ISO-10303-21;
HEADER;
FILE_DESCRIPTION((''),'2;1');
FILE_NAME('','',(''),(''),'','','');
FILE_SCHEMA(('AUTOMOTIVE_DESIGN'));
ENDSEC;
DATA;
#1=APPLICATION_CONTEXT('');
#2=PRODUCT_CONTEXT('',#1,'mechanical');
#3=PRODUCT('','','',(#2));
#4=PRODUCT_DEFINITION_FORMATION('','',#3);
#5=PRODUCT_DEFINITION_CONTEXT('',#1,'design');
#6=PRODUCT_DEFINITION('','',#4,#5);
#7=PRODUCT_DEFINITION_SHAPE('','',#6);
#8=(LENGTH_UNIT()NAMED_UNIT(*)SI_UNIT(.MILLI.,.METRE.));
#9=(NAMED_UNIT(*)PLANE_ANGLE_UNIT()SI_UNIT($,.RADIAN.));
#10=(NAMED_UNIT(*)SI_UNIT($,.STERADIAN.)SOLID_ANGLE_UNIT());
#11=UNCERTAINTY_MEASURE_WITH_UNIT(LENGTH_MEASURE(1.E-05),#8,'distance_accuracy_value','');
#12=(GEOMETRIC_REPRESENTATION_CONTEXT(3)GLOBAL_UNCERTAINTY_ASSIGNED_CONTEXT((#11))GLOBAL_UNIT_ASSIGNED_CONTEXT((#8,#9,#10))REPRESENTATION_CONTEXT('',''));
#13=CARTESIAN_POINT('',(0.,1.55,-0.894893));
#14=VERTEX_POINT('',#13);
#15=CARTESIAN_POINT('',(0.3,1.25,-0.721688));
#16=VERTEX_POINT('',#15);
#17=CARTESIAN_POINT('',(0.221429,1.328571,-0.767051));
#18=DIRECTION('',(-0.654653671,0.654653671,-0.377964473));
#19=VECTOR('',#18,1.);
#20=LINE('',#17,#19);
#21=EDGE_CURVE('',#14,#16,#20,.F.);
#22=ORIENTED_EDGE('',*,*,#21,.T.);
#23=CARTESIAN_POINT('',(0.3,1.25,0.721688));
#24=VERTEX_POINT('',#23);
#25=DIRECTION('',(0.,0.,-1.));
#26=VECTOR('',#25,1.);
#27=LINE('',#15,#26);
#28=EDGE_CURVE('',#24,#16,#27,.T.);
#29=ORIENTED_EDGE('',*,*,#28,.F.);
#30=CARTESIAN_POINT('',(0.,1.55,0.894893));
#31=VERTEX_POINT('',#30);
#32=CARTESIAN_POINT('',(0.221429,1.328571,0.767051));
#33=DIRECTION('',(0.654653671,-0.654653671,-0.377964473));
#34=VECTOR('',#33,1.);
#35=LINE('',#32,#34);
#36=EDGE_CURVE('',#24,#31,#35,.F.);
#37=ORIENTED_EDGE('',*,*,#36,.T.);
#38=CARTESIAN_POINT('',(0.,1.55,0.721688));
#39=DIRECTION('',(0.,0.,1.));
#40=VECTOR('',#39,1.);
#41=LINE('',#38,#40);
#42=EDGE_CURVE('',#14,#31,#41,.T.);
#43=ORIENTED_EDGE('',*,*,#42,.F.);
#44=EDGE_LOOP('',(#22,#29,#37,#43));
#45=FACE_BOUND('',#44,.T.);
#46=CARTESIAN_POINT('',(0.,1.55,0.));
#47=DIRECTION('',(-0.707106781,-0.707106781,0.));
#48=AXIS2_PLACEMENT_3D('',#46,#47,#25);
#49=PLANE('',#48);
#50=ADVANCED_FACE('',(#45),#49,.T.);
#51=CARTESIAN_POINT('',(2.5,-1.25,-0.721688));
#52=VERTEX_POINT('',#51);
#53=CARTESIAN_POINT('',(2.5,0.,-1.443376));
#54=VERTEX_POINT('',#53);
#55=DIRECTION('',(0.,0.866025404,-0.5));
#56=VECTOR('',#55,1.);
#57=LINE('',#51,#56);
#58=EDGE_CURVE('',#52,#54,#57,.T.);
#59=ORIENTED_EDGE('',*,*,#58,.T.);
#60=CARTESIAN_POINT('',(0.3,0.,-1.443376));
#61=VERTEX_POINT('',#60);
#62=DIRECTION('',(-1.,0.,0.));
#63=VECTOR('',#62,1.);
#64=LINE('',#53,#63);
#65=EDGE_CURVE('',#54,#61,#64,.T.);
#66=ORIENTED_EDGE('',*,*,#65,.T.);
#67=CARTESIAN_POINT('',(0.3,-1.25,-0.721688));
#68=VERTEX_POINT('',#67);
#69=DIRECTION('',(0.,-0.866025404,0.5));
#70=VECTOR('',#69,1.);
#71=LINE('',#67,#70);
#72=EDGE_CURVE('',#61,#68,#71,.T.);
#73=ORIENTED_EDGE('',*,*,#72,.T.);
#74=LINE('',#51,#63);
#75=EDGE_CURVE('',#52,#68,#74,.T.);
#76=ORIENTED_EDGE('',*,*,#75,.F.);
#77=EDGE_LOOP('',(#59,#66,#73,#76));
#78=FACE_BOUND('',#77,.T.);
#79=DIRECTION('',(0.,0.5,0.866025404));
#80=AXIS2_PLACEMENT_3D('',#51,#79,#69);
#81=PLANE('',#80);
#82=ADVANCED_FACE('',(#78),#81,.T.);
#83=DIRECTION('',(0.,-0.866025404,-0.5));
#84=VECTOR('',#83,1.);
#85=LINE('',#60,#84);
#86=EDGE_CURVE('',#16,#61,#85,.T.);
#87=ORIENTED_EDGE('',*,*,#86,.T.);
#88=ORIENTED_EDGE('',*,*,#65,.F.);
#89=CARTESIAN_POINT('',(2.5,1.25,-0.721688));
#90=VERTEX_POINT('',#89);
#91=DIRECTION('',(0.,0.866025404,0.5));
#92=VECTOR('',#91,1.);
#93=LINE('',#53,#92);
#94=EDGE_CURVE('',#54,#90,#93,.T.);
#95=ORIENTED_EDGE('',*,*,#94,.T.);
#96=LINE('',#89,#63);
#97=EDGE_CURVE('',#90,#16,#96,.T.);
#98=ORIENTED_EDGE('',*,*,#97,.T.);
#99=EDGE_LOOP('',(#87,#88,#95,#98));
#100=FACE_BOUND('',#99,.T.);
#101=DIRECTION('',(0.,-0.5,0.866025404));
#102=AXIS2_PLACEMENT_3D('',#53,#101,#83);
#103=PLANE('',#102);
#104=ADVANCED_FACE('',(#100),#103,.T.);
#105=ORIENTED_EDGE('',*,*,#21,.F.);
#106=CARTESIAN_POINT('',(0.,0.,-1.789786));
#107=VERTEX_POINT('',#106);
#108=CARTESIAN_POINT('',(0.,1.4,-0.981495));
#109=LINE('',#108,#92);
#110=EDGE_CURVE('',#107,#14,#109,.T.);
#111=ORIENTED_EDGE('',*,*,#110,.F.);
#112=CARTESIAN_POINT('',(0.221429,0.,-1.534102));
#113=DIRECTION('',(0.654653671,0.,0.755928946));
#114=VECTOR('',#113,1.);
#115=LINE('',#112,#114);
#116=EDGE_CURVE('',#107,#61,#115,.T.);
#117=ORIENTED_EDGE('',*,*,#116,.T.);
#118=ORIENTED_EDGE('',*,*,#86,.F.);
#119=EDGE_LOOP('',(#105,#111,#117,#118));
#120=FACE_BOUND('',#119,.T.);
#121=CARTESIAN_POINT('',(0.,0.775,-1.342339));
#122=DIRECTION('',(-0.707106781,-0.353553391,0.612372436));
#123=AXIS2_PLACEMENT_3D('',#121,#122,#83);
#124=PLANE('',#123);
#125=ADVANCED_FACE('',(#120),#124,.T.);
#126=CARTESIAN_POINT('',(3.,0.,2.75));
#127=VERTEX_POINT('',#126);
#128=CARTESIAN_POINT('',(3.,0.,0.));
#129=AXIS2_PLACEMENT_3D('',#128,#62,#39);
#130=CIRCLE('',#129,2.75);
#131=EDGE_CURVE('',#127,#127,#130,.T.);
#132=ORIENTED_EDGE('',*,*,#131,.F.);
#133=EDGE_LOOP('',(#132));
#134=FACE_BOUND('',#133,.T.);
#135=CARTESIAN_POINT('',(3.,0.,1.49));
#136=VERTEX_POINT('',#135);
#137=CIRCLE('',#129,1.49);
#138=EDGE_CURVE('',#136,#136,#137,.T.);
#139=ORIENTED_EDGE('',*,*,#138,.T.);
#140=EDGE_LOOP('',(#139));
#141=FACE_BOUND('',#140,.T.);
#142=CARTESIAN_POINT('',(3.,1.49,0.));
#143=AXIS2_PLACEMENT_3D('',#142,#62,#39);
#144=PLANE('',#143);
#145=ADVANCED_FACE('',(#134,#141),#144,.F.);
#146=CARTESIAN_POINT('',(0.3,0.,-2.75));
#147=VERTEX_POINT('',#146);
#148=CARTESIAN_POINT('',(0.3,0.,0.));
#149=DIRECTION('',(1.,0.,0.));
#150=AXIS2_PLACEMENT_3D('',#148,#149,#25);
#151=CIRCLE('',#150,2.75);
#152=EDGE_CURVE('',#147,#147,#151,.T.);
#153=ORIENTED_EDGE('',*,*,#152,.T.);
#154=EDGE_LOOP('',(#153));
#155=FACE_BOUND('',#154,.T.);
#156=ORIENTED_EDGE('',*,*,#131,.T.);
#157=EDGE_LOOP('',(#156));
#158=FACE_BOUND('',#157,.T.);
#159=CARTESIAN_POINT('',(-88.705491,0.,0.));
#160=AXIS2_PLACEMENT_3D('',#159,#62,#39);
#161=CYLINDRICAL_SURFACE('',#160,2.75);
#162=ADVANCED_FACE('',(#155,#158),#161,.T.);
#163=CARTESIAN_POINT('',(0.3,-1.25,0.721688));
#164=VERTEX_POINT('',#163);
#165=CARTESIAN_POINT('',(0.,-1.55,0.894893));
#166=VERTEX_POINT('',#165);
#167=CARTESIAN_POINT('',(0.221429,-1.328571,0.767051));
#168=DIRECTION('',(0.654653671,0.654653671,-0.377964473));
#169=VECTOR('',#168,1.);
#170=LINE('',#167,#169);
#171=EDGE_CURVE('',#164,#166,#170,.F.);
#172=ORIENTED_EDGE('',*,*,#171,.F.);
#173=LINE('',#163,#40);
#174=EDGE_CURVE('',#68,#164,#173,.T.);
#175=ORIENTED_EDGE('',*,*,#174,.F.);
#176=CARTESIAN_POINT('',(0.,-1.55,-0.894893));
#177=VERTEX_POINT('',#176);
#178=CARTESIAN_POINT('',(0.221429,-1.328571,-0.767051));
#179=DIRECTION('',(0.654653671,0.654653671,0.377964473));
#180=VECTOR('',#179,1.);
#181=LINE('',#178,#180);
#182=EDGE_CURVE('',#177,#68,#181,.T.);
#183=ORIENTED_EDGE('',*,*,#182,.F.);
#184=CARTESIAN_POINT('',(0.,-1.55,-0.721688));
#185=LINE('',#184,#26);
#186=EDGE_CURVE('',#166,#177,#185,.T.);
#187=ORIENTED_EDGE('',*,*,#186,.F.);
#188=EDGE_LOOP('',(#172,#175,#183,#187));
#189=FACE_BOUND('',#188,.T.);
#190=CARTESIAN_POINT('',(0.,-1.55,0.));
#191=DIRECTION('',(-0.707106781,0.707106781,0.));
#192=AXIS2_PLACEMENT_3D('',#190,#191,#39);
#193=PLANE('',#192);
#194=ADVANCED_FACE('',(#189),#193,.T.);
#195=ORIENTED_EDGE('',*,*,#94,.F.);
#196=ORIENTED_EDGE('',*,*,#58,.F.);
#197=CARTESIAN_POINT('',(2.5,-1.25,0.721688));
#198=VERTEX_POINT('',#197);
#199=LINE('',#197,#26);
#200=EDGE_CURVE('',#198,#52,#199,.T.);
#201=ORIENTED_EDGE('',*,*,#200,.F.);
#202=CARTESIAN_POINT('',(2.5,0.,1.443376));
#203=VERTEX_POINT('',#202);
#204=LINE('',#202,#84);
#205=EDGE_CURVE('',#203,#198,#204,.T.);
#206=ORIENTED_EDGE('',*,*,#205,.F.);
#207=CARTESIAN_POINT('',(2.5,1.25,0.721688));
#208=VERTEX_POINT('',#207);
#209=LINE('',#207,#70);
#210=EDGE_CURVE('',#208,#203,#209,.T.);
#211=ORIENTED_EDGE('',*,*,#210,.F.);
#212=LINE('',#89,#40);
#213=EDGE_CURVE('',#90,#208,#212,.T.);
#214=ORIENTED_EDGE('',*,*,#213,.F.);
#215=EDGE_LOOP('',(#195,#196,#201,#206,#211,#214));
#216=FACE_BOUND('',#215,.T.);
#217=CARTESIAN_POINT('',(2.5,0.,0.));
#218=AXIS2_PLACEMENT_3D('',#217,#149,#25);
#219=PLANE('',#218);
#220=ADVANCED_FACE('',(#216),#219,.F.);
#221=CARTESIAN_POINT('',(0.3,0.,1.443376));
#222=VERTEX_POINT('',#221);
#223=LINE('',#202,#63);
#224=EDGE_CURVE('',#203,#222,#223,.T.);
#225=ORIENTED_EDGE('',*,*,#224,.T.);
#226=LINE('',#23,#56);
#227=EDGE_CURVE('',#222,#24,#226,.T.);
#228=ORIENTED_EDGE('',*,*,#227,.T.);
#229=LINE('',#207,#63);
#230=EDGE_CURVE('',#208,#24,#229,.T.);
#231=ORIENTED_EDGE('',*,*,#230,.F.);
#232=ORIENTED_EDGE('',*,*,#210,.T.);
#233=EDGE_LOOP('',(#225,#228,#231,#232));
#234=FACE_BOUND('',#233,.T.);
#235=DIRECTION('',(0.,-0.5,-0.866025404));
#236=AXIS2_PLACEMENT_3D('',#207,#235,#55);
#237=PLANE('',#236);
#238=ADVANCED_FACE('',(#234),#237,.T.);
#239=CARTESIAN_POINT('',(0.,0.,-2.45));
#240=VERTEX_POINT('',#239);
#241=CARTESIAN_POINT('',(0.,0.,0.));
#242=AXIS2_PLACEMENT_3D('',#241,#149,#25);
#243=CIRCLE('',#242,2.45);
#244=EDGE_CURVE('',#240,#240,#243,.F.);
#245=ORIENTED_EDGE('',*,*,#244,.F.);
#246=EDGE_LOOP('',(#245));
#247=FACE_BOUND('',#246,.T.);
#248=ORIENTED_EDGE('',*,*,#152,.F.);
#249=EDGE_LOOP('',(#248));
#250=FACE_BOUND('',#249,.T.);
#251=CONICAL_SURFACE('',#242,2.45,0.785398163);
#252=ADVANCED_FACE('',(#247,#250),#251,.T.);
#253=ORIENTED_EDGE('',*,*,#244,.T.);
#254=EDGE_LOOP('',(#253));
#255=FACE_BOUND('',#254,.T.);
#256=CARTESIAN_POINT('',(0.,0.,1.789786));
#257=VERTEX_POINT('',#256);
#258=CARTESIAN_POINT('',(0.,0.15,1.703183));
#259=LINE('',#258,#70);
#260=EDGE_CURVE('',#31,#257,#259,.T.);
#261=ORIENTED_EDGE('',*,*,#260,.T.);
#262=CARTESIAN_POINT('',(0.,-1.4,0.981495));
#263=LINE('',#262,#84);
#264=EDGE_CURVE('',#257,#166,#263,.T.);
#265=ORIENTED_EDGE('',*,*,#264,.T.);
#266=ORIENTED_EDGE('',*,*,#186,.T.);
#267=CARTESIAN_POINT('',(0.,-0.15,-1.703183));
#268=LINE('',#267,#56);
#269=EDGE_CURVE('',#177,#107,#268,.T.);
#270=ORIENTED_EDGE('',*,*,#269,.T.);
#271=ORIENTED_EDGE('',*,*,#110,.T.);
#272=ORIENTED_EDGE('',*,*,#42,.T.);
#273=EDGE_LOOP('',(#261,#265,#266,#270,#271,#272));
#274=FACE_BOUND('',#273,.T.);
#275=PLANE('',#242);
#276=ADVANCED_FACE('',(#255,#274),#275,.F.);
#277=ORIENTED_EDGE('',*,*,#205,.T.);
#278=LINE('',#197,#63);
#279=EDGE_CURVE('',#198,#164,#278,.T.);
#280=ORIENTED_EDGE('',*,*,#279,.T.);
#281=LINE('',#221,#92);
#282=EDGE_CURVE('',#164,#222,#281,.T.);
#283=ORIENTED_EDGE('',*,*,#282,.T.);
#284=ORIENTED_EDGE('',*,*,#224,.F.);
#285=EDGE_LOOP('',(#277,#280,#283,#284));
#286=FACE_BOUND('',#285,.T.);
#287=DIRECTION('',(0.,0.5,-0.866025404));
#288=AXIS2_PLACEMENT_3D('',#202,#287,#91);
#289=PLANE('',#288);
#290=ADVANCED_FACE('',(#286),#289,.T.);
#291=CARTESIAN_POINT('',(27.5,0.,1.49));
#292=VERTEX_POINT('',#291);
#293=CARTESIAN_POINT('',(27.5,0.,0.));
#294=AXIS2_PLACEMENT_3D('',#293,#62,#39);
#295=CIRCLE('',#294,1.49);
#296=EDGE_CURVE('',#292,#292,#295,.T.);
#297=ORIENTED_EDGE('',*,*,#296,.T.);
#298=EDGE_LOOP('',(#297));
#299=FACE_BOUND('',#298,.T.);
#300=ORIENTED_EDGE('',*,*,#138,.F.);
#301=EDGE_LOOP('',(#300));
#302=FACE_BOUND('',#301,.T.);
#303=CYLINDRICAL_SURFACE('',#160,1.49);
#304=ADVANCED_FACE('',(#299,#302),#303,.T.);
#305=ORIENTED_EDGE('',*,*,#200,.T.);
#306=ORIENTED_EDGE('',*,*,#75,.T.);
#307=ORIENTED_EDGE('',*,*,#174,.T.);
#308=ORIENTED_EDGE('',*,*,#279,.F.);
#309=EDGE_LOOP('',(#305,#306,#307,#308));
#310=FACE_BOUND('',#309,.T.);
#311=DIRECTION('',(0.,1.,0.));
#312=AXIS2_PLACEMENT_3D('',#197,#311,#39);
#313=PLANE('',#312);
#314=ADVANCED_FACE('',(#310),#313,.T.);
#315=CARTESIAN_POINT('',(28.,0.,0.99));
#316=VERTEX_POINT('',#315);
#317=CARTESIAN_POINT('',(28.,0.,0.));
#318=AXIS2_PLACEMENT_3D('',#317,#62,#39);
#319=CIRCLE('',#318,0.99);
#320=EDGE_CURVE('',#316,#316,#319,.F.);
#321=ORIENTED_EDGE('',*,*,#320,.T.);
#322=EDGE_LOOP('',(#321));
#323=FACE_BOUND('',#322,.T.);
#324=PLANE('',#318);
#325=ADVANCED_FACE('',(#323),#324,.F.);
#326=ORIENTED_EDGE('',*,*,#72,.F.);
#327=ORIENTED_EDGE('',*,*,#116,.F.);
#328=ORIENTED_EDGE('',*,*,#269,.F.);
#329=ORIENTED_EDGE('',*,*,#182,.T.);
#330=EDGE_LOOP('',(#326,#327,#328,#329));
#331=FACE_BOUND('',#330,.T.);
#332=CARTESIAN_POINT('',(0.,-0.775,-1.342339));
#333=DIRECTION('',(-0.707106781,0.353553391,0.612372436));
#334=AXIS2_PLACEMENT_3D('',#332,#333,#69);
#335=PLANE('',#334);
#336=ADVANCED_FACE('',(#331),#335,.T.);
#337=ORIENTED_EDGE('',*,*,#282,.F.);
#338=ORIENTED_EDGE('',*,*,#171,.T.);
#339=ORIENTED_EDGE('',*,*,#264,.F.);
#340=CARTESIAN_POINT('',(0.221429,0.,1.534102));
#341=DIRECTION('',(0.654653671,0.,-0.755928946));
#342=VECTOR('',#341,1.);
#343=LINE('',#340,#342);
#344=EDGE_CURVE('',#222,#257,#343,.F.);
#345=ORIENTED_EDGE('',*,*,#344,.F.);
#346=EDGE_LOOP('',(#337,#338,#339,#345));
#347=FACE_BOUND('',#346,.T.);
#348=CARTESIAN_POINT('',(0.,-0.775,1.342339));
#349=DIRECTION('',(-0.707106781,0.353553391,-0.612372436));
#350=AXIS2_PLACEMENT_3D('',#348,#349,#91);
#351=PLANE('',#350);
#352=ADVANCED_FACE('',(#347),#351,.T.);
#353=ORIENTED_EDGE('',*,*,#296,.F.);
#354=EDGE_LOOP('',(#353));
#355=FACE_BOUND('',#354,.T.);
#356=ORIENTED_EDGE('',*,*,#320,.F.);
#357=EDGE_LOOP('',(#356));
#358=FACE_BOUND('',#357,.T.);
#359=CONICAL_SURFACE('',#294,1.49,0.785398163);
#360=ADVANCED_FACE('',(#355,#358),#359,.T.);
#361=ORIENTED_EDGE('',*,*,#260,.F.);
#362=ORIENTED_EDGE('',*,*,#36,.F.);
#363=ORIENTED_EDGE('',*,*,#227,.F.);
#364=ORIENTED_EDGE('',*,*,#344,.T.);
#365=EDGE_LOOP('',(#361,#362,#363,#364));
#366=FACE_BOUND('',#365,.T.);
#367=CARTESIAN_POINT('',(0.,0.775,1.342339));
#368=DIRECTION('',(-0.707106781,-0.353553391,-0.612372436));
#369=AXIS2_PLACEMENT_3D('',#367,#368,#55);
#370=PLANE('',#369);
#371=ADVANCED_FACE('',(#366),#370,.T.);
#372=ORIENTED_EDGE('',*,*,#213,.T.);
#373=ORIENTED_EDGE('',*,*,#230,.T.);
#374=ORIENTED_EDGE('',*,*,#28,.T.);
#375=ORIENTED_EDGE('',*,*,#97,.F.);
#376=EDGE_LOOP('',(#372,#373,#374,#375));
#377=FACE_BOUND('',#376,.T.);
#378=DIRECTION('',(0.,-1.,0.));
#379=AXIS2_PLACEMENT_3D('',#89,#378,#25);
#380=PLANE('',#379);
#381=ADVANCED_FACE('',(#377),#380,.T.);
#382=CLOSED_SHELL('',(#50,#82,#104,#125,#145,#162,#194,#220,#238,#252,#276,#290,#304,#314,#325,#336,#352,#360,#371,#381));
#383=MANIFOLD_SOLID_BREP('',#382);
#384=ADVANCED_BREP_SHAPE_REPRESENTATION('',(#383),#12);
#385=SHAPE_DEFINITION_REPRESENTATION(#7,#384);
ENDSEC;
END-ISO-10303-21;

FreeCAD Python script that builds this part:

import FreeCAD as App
import Part
import Sketcher
from FreeCAD import Vector
Q = App.Units.Quantity


def edges_at(feature, points):
    """Names of the edges that pass closest to the given points."""
    edges = feature.Shape.Edges
    near = lambda p: min(range(len(edges)), key=lambda i: edges[i].distToShape(Part.Vertex(*p))[0])
    return sorted({f"Edge{near(p) + 1}" for p in points})


def add_polygon(sketch, points):
    """Adds a closed chain of lines whose ends are joined by coincident constraints."""
    first, n = sketch.GeometryCount, len(points)
    for a, b in zip(points, points[1:] + points[:1]):
        sketch.addGeometry(Part.LineSegment(App.Vector(*a, 0), App.Vector(*b, 0)), False)
    for i in range(n):
        sketch.addConstraint(Sketcher.Constraint("Coincident", first + i, 2, first + (i + 1) % n, 1))

doc = App.newDocument("Part")
body = doc.addObject("PartDesign::Body", "Body")

sketch1 = body.newObject("Sketcher::SketchObject", "Sketch")
sketch1.AttachmentSupport = (doc.getObject("XY_Plane"), [""])
sketch1.MapMode = "FlatFace"
add_polygon(sketch1, [(0, 2.8), (0, 0), (28, 0), (28, 1.5), (3, 1.5), (3, 2.8)])
sketch1.addConstraint([
    Sketcher.Constraint("Vertical", 0),
    Sketcher.Constraint("Horizontal", 1),
    Sketcher.Constraint("Vertical", 2),
    Sketcher.Constraint("Horizontal", 3),
    Sketcher.Constraint("Vertical", 4),
    Sketcher.Constraint("Horizontal", 5),
    Sketcher.Constraint("Coincident", 0, 2, -1, 1),
    Sketcher.Constraint("DistanceX", 1, 1, 1, 2, Q("28 mm")),
    Sketcher.Constraint("DistanceX", 3, 2, 3, 1, Q("25 mm")),
    Sketcher.Constraint("DistanceY", 0, 2, 0, 1, Q("2.75 mm")),
    Sketcher.Constraint("DistanceY", 2, 1, 2, 2, Q("1.49 mm")),
])
revolution = body.newObject("PartDesign::Revolution", "Revolution")
revolution.Profile = sketch1
revolution.ReferenceAxis = (sketch1, ["H_Axis"])
revolution.Angle = 360
doc.recompute()

chamfer = body.newObject("PartDesign::Chamfer", "Chamfer")
chamfer.Base = (revolution, edges_at(revolution, [(28, -1.49, 0)]))
chamfer.Size = 0.5
doc.recompute()

chamfer2 = body.newObject("PartDesign::Chamfer", "Chamfer001")
chamfer2.Base = (chamfer, edges_at(chamfer, [(0, -2.75, 0)]))
chamfer2.Size = 0.3

sketch2 = body.newObject("Sketcher::SketchObject", "Sketch001")
sketch2.AttachmentSupport = (doc.getObject("YZ_Plane"), [""])
sketch2.MapMode = "FlatFace"
add_polygon(sketch2, [(0, 1.4), (-1.2, 0.7), (-1.2, -0.7), (0, -1.4), (1.2, -0.7), (1.2, 0.7)])
sketch2.addConstraint([
    Sketcher.Constraint("Vertical", 1),
    Sketcher.Constraint("Vertical", 4),
    Sketcher.Constraint("Symmetric", 0, 2, 3, 2, -1, 1),
    Sketcher.Constraint("Symmetric", 2, 2, 5, 2, -1, 1),
    Sketcher.Constraint("PointOnObject", 2, 2, -2),
    Sketcher.Constraint("Parallel", 2, 5),
    Sketcher.Constraint("Horizontal", 1, 2, 3, 2),
    Sketcher.Constraint("Angle", 0, Q("-150 deg")),
    Sketcher.Constraint("DistanceX", 1, 2, 3, 2, Q("2.5 mm")),
    Sketcher.Constraint("DistanceY", 1, 2, 1, 1, Q("1.443376 mm")),
])
pocket1 = body.newObject("PartDesign::Pocket", "Pocket")
pocket1.Profile = sketch2
pocket1.Length = 2.5
pocket1.Reversed = True
doc.recompute()

chamfer3 = body.newObject("PartDesign::Chamfer", "Chamfer002")
chamfer3.Base = (pocket1, edges_at(pocket1, [
    (0, 0.625, 1.083),
    (0, -0.625, 1.083),
    (0, -1.25, 0),
    (0, -0.625, -1.083),
    (0, 0.625, -1.083),
    (0, 1.25, 0),
]))
chamfer3.Size = 0.3

doc.recompute()
